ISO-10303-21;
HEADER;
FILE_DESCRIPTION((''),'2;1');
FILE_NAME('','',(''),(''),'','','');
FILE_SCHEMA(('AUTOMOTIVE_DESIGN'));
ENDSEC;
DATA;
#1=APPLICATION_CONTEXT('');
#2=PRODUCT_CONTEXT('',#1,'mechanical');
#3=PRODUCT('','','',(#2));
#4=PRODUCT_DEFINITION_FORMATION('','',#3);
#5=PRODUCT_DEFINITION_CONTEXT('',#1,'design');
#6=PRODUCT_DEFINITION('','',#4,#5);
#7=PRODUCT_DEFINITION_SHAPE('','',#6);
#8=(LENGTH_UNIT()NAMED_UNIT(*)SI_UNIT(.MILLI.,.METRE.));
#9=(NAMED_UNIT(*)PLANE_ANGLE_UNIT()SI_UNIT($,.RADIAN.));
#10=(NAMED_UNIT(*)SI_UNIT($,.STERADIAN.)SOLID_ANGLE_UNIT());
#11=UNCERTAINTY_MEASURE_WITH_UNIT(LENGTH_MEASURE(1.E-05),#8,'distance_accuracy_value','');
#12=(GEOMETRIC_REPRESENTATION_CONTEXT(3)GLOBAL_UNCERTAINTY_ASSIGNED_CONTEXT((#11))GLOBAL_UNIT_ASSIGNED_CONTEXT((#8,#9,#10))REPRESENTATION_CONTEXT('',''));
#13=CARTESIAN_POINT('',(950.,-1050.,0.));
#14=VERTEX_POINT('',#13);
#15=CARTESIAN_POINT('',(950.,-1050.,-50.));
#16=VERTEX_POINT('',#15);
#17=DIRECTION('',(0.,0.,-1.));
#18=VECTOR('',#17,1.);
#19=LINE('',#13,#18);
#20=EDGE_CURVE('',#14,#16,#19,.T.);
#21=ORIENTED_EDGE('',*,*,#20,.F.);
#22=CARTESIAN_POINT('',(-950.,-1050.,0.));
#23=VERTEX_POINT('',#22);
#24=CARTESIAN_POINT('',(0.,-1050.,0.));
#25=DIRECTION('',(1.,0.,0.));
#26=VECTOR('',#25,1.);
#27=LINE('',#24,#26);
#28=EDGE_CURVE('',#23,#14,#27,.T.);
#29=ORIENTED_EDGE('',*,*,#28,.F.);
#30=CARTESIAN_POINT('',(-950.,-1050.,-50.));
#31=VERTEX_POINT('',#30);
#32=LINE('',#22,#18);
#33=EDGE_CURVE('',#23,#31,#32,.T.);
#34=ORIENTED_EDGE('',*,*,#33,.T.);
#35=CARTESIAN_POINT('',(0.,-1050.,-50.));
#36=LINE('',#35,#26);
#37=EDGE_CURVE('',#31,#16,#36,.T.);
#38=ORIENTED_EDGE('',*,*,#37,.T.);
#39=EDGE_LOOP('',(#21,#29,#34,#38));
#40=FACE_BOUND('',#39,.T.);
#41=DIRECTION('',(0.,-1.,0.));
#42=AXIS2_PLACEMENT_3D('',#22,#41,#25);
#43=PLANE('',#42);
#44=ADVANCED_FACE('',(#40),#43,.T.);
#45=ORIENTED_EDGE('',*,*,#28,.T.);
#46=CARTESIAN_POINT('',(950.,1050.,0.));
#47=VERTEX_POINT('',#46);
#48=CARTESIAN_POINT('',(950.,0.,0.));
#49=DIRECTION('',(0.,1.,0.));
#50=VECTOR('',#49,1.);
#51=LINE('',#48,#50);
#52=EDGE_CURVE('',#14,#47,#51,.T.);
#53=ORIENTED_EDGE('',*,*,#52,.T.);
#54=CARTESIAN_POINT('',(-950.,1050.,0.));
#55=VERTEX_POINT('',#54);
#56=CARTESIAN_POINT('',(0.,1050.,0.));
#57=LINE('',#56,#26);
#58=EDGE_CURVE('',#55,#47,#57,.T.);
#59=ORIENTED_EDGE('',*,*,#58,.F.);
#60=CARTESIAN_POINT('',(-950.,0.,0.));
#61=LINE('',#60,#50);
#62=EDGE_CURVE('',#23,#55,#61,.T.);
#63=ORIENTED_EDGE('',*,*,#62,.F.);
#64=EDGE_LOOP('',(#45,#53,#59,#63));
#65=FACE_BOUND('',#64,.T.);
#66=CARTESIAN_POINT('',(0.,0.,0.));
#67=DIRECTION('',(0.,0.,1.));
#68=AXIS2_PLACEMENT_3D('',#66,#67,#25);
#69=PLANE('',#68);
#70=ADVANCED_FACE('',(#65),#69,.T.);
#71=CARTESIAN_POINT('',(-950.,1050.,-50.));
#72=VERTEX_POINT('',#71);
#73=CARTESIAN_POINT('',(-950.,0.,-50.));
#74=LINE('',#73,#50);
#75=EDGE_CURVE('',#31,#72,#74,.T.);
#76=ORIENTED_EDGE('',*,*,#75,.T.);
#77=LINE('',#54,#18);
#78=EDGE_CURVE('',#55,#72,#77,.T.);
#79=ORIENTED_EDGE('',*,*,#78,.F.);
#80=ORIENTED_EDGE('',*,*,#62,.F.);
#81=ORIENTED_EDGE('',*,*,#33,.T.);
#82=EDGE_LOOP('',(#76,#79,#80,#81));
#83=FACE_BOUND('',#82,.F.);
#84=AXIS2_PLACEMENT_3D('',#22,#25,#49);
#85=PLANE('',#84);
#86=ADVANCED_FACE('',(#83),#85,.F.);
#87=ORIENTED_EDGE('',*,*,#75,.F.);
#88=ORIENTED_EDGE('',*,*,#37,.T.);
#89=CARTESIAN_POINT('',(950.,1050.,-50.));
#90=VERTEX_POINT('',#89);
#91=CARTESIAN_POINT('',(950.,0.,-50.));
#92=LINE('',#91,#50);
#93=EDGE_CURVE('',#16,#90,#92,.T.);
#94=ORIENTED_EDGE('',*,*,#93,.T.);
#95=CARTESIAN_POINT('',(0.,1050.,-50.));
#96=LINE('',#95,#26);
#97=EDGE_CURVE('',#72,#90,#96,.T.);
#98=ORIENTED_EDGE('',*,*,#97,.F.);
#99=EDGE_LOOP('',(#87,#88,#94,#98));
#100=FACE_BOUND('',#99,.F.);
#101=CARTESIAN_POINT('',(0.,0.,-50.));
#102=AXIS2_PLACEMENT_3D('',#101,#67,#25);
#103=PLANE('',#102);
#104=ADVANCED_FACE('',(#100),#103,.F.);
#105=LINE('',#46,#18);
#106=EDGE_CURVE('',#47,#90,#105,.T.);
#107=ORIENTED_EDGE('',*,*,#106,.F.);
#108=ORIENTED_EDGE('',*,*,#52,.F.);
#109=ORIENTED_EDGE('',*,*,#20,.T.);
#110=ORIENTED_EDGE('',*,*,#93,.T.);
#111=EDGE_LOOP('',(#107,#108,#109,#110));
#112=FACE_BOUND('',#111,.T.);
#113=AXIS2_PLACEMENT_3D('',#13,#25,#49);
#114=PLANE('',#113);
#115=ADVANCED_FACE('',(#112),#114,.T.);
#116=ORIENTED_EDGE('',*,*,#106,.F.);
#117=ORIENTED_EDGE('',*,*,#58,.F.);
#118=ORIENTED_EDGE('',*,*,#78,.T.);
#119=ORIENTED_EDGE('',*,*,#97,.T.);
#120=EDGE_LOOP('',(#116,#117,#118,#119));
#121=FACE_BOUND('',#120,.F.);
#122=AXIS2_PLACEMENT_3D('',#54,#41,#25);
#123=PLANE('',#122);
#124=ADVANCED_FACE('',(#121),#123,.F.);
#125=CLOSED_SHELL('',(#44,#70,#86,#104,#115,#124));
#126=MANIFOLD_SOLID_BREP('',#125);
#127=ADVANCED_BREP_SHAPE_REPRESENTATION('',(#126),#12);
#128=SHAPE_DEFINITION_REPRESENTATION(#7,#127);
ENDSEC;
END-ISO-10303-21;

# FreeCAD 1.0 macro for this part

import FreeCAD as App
import Part
import Sketcher
from FreeCAD import Vector
Q = App.Units.Quantity


def add_polygon(sketch, points):
    """Adds a closed chain of lines whose ends are joined by coincident constraints."""
    first, n = sketch.GeometryCount, len(points)
    for a, b in zip(points, points[1:] + points[:1]):
        sketch.addGeometry(Part.LineSegment(App.Vector(*a, 0), App.Vector(*b, 0)), False)
    for i in range(n):
        sketch.addConstraint(Sketcher.Constraint("Coincident", first + i, 2, first + (i + 1) % n, 1))

doc = App.newDocument("Part")
body = doc.addObject("PartDesign::Body", "Body")

# Sketch on XY plane
sketch1 = body.newObject("Sketcher::SketchObject", "Sketch")
sketch1.AttachmentSupport = (doc.getObject("XY_Plane"), [""])
sketch1.MapMode = "FlatFace"
add_polygon(sketch1, [(-950, 1050), (-950, -1050), (950, -1050), (950, 1050)])  # lines 0-3
sketch1.addConstraint([
    Sketcher.Constraint("Vertical", 0),
    Sketcher.Constraint("Horizontal", 1),
    Sketcher.Constraint("Vertical", 2),
    Sketcher.Constraint("Horizontal", 3),
    Sketcher.Constraint("Symmetric", 0, 2, 2, 2, -1, 1),
    Sketcher.Constraint("DistanceX", 1, 1, 1, 2, Q("1900 mm")),
    Sketcher.Constraint("DistanceY", 0, 2, 0, 1, Q("2100 mm")),
])
pad1 = body.newObject("PartDesign::Pad", "Pad")
pad1.Profile = sketch1
pad1.Length = 50
pad1.Reversed = True

doc.recompute()
